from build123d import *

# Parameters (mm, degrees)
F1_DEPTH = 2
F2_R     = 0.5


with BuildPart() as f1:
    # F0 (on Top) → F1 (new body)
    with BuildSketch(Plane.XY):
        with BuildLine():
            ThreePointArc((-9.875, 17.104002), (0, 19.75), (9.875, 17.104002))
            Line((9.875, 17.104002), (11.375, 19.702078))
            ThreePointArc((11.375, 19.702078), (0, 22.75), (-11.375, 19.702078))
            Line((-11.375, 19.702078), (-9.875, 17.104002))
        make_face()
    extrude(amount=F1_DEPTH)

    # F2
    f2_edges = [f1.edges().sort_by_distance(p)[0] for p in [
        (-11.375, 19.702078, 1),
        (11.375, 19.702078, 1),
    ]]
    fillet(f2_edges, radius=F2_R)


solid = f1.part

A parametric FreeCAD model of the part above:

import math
import FreeCAD as App
import Part
import Sketcher
from FreeCAD import Vector
Q = App.Units.Quantity


def edges_at(feature, points):
    """Names of the edges that pass closest to the given points."""
    edges = feature.Shape.Edges
    near = lambda p: min(range(len(edges)), key=lambda i: edges[i].distToShape(Part.Vertex(*p))[0])
    return sorted({f"Edge{near(p) + 1}" for p in points})

doc = App.newDocument("Part")
params = doc.addObject("Spreadsheet::Sheet", "Params")
for row, (alias, value) in enumerate([
    ("sketch1_radius", "19.750002 mm"),
    ("sketch1_radius2", "22.75 mm"),
    ("pad1_length", "2 mm"),
    ("fillet_radius", "0.5 mm"),
], start=1):
    params.set(f"A{row}", alias)
    params.set(f"B{row}", "=" + value)
    params.setAlias(f"B{row}", alias)

body = doc.addObject("PartDesign::Body", "Body")

# Sketch on XY plane
sketch1 = body.newObject("Sketcher::SketchObject", "Sketch")
sketch1.AttachmentSupport = (doc.getObject("XY_Plane"), [""])
sketch1.MapMode = "FlatFace"
sketch1.addGeometry(Part.ArcOfCircle(Part.Circle(Vector(0, 0, 0), Vector(0, 0, 1), 19.8), math.radians(60), math.radians(120)), False)
sketch1.addGeometry(Part.LineSegment(Vector(9.9, 17.1, 0), Vector(11.4, 19.7, 0)), False)
sketch1.addGeometry(Part.ArcOfCircle(Part.Circle(Vector(0, 0, 0), Vector(0, 0, 1), 22.8), math.radians(60), math.radians(120)), False)
sketch1.addGeometry(Part.LineSegment(Vector(-11.4, 19.7, 0), Vector(-9.9, 17.1, 0)), False)
sketch1.addConstraint(Sketcher.Constraint("Coincident", 0, 1, 1, 1))
sketch1.addConstraint(Sketcher.Constraint("Coincident", 1, 2, 2, 1))
sketch1.addConstraint(Sketcher.Constraint("Coincident", 2, 2, 3, 1))
sketch1.addConstraint(Sketcher.Constraint("Coincident", 3, 2, 0, 2))
sketch1.addConstraint(Sketcher.Constraint("Coincident", 0, 3, -1, 1))
sketch1.addConstraint(Sketcher.Constraint("Coincident", 2, 3, -1, 1))
sketch1.addConstraint(Sketcher.Constraint("Horizontal", 1, 2, 2, 2))
sketch1.addConstraint(Sketcher.Constraint("Horizontal", 0, 1, 3, 2))
sketch1.addConstraint(Sketcher.Constraint("Angle", 1, Q("59.999998 deg")))
sketch1.addConstraint(Sketcher.Constraint("Radius", 0, Q("19.750002 mm")))
sketch1.addConstraint(Sketcher.Constraint("Radius", 2, Q("22.75 mm")))
sketch1.addConstraint(Sketcher.Constraint("DistanceX", 2, 2, 0, 1, Q("21.25 mm")))
sketch1.setExpression("Constraints[9]", "Params.sketch1_radius")
sketch1.setExpression("Constraints[10]", "Params.sketch1_radius2")
pad1 = body.newObject("PartDesign::Pad", "Pad")
pad1.Profile = sketch1
pad1.setExpression("Length", "Params.pad1_length")
doc.recompute()

fillet = body.newObject("PartDesign::Fillet", "Fillet")
fillet.Base = (pad1, edges_at(pad1, [(-11.375, 19.702, 1), (11.375, 19.702, 1)]))
fillet.setExpression("Radius", "Params.fillet_radius")

doc.recompute()
